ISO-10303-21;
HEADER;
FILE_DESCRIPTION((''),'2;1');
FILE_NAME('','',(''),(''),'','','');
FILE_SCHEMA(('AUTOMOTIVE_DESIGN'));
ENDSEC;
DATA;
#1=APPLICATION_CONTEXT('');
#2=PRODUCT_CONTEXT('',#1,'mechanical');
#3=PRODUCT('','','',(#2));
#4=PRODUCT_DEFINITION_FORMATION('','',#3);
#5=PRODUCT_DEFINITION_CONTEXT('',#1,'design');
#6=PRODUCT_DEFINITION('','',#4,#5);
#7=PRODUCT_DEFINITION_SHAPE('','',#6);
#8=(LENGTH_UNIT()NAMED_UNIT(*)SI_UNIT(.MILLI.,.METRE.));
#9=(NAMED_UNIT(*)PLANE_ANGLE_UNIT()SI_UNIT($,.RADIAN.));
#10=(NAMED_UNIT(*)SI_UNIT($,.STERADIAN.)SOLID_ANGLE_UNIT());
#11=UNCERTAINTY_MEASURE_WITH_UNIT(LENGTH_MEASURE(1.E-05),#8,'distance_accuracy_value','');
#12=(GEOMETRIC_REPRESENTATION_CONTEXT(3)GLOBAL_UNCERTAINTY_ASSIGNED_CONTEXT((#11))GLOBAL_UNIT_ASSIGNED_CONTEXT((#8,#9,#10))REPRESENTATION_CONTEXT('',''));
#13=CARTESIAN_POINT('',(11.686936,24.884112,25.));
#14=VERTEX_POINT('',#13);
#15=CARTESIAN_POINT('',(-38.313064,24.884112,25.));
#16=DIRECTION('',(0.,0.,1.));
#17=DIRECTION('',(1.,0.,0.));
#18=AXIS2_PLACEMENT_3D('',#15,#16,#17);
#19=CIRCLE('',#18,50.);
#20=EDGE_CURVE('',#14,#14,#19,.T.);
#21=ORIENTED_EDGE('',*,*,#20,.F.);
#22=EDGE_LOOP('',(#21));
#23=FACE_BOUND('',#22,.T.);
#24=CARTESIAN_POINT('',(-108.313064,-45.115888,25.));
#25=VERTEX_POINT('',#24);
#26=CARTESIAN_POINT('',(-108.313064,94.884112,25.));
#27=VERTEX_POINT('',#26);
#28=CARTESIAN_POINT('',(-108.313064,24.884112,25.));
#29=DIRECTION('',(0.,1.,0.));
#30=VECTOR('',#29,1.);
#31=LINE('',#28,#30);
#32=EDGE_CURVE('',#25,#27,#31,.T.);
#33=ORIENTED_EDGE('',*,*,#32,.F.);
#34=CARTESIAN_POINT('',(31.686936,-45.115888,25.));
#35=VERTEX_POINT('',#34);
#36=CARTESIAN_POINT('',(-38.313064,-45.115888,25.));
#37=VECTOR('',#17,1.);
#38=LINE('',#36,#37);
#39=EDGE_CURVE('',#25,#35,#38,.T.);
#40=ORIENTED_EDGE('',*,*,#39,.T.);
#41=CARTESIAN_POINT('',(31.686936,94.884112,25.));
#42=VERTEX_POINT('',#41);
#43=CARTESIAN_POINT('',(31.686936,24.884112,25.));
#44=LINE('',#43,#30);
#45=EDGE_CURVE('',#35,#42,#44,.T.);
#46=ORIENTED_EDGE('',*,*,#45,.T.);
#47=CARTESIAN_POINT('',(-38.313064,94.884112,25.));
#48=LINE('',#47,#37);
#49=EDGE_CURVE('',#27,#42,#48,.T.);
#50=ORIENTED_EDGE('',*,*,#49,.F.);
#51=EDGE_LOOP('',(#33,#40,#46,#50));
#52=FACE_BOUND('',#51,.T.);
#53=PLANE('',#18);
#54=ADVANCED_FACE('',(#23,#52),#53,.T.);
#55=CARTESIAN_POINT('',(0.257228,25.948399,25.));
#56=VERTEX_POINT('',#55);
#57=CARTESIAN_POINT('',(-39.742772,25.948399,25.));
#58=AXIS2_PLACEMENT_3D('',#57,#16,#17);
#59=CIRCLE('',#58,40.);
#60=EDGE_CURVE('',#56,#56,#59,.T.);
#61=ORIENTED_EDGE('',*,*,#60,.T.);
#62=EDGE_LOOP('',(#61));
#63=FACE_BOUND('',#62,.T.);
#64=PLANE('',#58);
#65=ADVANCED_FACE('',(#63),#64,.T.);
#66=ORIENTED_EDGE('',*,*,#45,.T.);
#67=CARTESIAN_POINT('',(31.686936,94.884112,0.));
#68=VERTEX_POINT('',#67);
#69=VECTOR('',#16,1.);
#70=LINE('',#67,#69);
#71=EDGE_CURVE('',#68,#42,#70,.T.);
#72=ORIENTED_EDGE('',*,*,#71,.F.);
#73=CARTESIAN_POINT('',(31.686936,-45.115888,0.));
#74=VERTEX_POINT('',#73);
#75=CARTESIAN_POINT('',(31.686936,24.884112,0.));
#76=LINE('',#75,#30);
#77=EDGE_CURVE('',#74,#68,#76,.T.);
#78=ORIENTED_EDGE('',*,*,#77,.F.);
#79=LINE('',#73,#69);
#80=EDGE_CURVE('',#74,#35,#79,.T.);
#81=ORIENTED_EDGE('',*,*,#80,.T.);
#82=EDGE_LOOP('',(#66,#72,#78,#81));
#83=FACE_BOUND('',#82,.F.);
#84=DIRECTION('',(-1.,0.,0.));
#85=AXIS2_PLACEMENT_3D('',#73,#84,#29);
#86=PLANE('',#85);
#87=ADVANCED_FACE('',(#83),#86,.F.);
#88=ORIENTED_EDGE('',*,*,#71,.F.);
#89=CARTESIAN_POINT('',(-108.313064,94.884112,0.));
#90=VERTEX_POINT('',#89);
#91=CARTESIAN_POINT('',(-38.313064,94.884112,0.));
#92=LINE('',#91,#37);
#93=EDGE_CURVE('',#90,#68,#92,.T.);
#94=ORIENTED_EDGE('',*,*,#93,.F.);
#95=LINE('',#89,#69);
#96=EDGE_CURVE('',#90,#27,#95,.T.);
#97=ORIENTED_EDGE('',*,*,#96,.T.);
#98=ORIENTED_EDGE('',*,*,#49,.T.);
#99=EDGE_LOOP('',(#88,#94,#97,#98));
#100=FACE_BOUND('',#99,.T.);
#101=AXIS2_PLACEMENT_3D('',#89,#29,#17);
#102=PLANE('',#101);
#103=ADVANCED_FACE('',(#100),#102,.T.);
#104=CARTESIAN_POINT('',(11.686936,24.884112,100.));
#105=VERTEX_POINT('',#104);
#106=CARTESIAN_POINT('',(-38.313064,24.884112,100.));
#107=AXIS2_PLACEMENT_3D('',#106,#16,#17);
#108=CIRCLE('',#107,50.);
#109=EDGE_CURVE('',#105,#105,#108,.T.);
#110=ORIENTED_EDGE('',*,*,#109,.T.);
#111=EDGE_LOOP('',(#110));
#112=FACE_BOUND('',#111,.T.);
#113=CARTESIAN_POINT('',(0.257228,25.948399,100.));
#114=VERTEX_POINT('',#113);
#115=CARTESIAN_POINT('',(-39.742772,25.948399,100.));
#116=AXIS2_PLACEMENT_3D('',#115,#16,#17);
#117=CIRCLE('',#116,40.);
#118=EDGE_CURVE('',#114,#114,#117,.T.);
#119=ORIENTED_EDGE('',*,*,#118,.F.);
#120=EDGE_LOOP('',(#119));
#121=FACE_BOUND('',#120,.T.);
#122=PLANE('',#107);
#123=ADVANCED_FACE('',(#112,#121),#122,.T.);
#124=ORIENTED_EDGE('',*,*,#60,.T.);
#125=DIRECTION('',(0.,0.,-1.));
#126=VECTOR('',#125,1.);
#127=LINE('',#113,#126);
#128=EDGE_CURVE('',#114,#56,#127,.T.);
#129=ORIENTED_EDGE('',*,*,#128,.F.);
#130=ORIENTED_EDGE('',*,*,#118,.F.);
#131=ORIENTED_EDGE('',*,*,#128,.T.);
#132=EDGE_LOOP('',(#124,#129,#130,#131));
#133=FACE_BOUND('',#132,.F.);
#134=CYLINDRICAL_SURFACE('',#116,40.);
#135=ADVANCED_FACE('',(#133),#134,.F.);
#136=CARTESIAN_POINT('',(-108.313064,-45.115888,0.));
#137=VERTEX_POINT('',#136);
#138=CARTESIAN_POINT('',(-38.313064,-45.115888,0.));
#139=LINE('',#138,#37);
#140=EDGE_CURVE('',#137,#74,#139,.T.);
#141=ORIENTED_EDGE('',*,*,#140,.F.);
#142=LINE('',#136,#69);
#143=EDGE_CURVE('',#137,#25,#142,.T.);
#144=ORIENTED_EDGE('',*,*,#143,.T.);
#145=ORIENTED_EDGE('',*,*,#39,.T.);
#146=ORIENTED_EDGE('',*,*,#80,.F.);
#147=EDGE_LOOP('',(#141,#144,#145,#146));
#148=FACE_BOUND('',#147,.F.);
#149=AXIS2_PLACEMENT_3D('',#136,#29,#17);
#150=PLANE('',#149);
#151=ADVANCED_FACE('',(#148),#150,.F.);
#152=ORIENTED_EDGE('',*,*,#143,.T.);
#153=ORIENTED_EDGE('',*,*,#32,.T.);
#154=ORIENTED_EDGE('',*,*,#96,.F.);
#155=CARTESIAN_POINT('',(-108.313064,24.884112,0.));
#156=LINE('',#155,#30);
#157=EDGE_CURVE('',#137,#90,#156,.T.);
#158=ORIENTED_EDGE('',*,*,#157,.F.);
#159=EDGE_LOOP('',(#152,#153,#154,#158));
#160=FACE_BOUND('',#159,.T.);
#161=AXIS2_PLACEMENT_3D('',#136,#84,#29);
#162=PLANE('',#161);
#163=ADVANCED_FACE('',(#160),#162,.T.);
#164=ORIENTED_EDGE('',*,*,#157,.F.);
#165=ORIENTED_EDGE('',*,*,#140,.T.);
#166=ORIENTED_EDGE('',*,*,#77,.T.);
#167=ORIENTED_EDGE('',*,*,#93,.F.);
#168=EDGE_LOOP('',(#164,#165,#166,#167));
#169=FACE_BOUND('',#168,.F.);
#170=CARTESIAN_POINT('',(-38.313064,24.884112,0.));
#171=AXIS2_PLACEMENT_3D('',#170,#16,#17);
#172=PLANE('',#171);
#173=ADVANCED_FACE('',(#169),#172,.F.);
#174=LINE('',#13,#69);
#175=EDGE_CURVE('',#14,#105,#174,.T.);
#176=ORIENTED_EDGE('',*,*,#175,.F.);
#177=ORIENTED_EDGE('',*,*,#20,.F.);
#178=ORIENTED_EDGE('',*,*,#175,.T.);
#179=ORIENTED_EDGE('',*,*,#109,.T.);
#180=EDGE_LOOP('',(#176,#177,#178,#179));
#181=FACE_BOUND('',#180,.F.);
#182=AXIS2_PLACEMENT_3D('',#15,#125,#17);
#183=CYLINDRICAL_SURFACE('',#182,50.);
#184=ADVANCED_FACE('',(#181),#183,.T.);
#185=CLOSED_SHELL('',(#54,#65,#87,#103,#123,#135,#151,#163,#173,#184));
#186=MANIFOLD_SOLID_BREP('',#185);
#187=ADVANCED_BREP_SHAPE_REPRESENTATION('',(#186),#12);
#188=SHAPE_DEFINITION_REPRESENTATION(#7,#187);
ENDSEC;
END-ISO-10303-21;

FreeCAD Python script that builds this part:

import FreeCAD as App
import Part
import Sketcher

V = App.Vector


def add_polygon(sketch, points):
    """Adds a closed chain of lines whose ends are joined by coincident constraints."""
    first, n = sketch.GeometryCount, len(points)
    for a, b in zip(points, points[1:] + points[:1]):
        sketch.addGeometry(Part.LineSegment(App.Vector(*a, 0), App.Vector(*b, 0)), False)
    for i in range(n):
        sketch.addConstraint(Sketcher.Constraint("Coincident", first + i, 2, first + (i + 1) % n, 1))

doc = App.newDocument("Part")
body = doc.addObject("PartDesign::Body", "Body")

sketch1 = body.newObject("Sketcher::SketchObject", "Sketch")
sketch1.AttachmentSupport = (doc.getObject("XY_Plane"), [""])
sketch1.MapMode = "FlatFace"
add_polygon(sketch1, [(-108, 95), (-108, -45), (32, -45), (32, 95)])
sketch1.addConstraint([
    Sketcher.Constraint("Vertical", 0),
    Sketcher.Constraint("Horizontal", 1),
    Sketcher.Constraint("Vertical", 2),
    Sketcher.Constraint("Horizontal", 3),
    Sketcher.Constraint("Equal", 3, 0),
    Sketcher.Constraint("DistanceX", 1, 1, 1, 2, 140.0),
    Sketcher.Constraint("DistanceY", -1, 1, 2, 2, 94.884112),
    Sketcher.Constraint("DistanceX", 0, 2, -1, 1, 108.313064),
])
pad1 = body.newObject("PartDesign::Pad", "Pad")
pad1.Profile = sketch1
pad1.Length = 25

sketch2 = body.newObject("Sketcher::SketchObject", "Sketch001")
sketch2.AttachmentSupport = (doc.getObject("XY_Plane"), [""])
sketch2.MapMode = "FlatFace"
sketch2.AttachmentOffset = App.Placement(V(0, 0, 25), App.Rotation())
sketch2.addGeometry(Part.Circle(V(-38, 25, 0), V(0, 0, 1), 50), False)
sketch2.addConstraint([
    Sketcher.Constraint("Diameter", 0, 100.0),
    Sketcher.Constraint("DistanceY", -1, 1, 0, 3, 24.884112),
    Sketcher.Constraint("DistanceX", 0, 3, -1, 1, 38.313064),
])
pad2 = body.newObject("PartDesign::Pad", "Pad001")
pad2.Profile = sketch2
pad2.Length = 75

sketch3 = body.newObject("Sketcher::SketchObject", "Sketch002")
sketch3.AttachmentSupport = (doc.getObject("XY_Plane"), [""])
sketch3.MapMode = "FlatFace"
sketch3.AttachmentOffset = App.Placement(V(0, 0, 100), App.Rotation())
sketch3.addGeometry(Part.Circle(V(-40, 26, 0), V(0, 0, 1), 40), False)
sketch3.addConstraint([
    Sketcher.Constraint("Diameter", 0, 80.0),
    Sketcher.Constraint("DistanceY", -1, 1, 0, 3, 25.948399),
    Sketcher.Constraint("DistanceX", 0, 3, -1, 1, 39.742772),
])
pocket1 = body.newObject("PartDesign::Pocket", "Pocket")
pocket1.Profile = sketch3
pocket1.Length = 75

doc.recompute()
